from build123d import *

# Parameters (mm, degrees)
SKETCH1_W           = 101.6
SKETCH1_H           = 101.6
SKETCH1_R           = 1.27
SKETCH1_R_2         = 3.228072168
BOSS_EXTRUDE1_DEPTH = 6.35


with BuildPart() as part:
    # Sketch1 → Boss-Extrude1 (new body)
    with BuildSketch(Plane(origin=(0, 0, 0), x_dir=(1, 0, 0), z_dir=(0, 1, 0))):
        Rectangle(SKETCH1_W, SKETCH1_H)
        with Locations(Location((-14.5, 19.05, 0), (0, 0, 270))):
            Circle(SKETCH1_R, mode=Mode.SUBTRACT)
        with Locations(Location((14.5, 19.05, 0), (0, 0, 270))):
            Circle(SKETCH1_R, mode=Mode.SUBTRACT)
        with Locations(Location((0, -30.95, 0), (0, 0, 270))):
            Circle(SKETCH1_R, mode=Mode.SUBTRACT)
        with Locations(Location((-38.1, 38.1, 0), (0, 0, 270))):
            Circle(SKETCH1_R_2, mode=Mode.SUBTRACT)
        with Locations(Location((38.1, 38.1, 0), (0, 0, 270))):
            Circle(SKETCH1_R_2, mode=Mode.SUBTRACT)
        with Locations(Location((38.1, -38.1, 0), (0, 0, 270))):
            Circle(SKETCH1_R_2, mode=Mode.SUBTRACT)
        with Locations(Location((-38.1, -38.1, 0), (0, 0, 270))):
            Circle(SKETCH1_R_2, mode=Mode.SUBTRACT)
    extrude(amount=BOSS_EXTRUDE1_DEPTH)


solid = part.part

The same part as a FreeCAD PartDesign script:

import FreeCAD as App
import Part
import Sketcher

V = App.Vector
Q = App.Units.Quantity

doc = App.newDocument("Part")
params = doc.addObject("Spreadsheet::Sheet", "Params")
for row, (alias, value) in enumerate([
    ("sketch1_diameter", "0.1 in"),
    ("sketch1_width", "4 in"),
    ("pad1_length", "0.25 in"),
], start=1):
    params.set(f"A{row}", alias)
    params.set(f"B{row}", "=" + value)
    params.setAlias(f"B{row}", alias)

body = doc.addObject("PartDesign::Body", "Body")

# Sketch on XZ plane
sketch1 = body.newObject("Sketcher::SketchObject", "Sketch")
sketch1.AttachmentSupport = (doc.getObject("XZ_Plane"), [""])
sketch1.MapMode = "FlatFace"
sketch1.addGeometry([
    Part.LineSegment(V(-50.8, -50.8, 0), V(-50.8, 50.8, 0)),  # 0
    Part.LineSegment(V(-50.8, 50.8, 0), V(50.8, 50.8, 0)),  # 1
    Part.LineSegment(V(50.8, 50.8, 0), V(50.8, -50.8, 0)),  # 2
    Part.LineSegment(V(50.8, -50.8, 0), V(-50.8, -50.8, 0)),  # 3
    Part.Circle(V(-38.1, 38.1, 0), V(0, 0, 1), 3.2),  # 4
    Part.Circle(V(0, 30.9, 0), V(0, 0, 1), 1.3),  # 5
    Part.Circle(V(38.1, 38.1, 0), V(0, 0, 1), 3.2),  # 6
    Part.Circle(V(-14.5, -19.1, 0), V(0, 0, 1), 1.3),  # 7
    Part.Circle(V(-38.1, -38.1, 0), V(0, 0, 1), 3.2),  # 8
    Part.Circle(V(14.5, -19.1, 0), V(0, 0, 1), 1.3),  # 9
    Part.Circle(V(38.1, -38.1, 0), V(0, 0, 1), 3.2),  # 10
], False)
sketch1.addConstraint([
    Sketcher.Constraint("Coincident", 0, 2, 1, 1),
    Sketcher.Constraint("Coincident", 1, 2, 2, 1),
    Sketcher.Constraint("Coincident", 2, 2, 3, 1),
    Sketcher.Constraint("Coincident", 3, 2, 0, 1),
    Sketcher.Constraint("Vertical", 0),
    Sketcher.Constraint("Horizontal", 1),
    Sketcher.Constraint("Vertical", 2),
    Sketcher.Constraint("Horizontal", 3),
    Sketcher.Constraint("Equal", 4, 6),
    Sketcher.Constraint("Equal", 5, 7),
    Sketcher.Constraint("Equal", 6, 8),
    Sketcher.Constraint("Equal", 7, 9),
    Sketcher.Constraint("Equal", 8, 10),
    Sketcher.Constraint("Symmetric", 6, 3, 8, 3, -1, 1),
    Sketcher.Constraint("Symmetric", 4, 3, 10, 3, -1, 1),
    Sketcher.Constraint("Symmetric", 0, 2, 2, 2, -1, 1),
    Sketcher.Constraint("Symmetric", 4, 3, 6, 3, -2),
    Sketcher.Constraint("Symmetric", 7, 3, 9, 3, -2),
    Sketcher.Constraint("PointOnObject", 5, 3, -2),
    Sketcher.Constraint("Equal", 3, 0),
    Sketcher.Constraint("Diameter", 5, Q("0.1 in")),
    Sketcher.Constraint("DistanceX", 1, 1, 1, 2, Q("4 in")),
    Sketcher.Constraint("DistanceX", 4, 3, 6, 3, Q("3 in")),
    Sketcher.Constraint("DistanceY", 8, 3, 4, 3, Q("3 in")),
    Sketcher.Constraint("DistanceY", 7, 3, -1, 1, Q("0.75 in")),
    Sketcher.Constraint("Diameter", 4, 6.456144),
    Sketcher.Constraint("DistanceY", -1, 1, 5, 3, 30.95),
    Sketcher.Constraint("DistanceX", 7, 3, -1, 1, 14.5),
])
sketch1.setExpression("Constraints[20]", "Params.sketch1_diameter")
sketch1.setExpression("Constraints[21]", "Params.sketch1_width")
pad1 = body.newObject("PartDesign::Pad", "Pad")
pad1.Profile = sketch1
pad1.setExpression("Length", "Params.pad1_length")
pad1.Reversed = True

doc.recompute()
